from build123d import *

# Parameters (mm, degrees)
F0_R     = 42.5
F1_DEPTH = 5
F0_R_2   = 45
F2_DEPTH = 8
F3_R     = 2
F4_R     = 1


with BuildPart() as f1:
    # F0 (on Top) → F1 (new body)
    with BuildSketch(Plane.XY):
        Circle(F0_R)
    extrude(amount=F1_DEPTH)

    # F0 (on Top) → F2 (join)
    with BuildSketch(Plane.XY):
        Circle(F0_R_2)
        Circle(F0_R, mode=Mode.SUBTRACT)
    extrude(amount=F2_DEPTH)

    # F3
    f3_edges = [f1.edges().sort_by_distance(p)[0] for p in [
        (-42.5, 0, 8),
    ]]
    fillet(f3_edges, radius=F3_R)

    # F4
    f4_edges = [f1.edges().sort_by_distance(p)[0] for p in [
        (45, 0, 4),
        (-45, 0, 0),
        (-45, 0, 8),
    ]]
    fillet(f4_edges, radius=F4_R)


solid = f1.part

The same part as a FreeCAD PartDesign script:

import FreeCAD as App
import Part
import Sketcher
Q = App.Units.Quantity


def edges_at(feature, points):
    """Names of the edges that pass closest to the given points."""
    edges = feature.Shape.Edges
    near = lambda p: min(range(len(edges)), key=lambda i: edges[i].distToShape(Part.Vertex(*p))[0])
    return sorted({f"Edge{near(p) + 1}" for p in points})

doc = App.newDocument("Part")
body = doc.addObject("PartDesign::Body", "Body")

# Sketch on XY plane
sketch1 = body.newObject("Sketcher::SketchObject", "Sketch")
sketch1.AttachmentSupport = (doc.getObject("XY_Plane"), [""])
sketch1.MapMode = "FlatFace"
sketch1.addGeometry(Part.Circle(App.Vector(0, 0, 0), App.Vector(0, 0, 1), 42), False)
sketch1.addConstraint(Sketcher.Constraint("Coincident", 0, 3, -1, 1))
sketch1.addConstraint(Sketcher.Constraint("Diameter", 0, Q("85 mm")))
pad1 = body.newObject("PartDesign::Pad", "Pad")
pad1.Profile = sketch1
pad1.Length = 5

# Sketch on XY plane
sketch2 = body.newObject("Sketcher::SketchObject", "Sketch001")
sketch2.AttachmentSupport = (doc.getObject("XY_Plane"), [""])
sketch2.MapMode = "FlatFace"
sketch2.addGeometry(Part.Circle(App.Vector(0, 0, 0), App.Vector(0, 0, 1), 45), False)
sketch2.addGeometry(Part.Circle(App.Vector(0, 0, 0), App.Vector(0, 0, 1), 42), False)
sketch2.addConstraint(Sketcher.Constraint("Coincident", 0, 3, -1, 1))
sketch2.addConstraint(Sketcher.Constraint("Coincident", 1, 3, -1, 1))
sketch2.addConstraint(Sketcher.Constraint("Diameter", 0, Q("90 mm")))
sketch2.addConstraint(Sketcher.Constraint("Diameter", 1, Q("85 mm")))
pad2 = body.newObject("PartDesign::Pad", "Pad001")
pad2.Profile = sketch2
pad2.Length = 8
doc.recompute()

fillet = body.newObject("PartDesign::Fillet", "Fillet")
fillet.Base = (pad2, edges_at(pad2, [(-42.5, 0, 8)]))
fillet.Radius = 2
doc.recompute()

fillet2 = body.newObject("PartDesign::Fillet", "Fillet001")
fillet2.Base = (fillet, edges_at(fillet, [(45, 0, 4), (-45, 0, 0), (-45, 0, 8)]))
fillet2.Radius = 1

doc.recompute()
